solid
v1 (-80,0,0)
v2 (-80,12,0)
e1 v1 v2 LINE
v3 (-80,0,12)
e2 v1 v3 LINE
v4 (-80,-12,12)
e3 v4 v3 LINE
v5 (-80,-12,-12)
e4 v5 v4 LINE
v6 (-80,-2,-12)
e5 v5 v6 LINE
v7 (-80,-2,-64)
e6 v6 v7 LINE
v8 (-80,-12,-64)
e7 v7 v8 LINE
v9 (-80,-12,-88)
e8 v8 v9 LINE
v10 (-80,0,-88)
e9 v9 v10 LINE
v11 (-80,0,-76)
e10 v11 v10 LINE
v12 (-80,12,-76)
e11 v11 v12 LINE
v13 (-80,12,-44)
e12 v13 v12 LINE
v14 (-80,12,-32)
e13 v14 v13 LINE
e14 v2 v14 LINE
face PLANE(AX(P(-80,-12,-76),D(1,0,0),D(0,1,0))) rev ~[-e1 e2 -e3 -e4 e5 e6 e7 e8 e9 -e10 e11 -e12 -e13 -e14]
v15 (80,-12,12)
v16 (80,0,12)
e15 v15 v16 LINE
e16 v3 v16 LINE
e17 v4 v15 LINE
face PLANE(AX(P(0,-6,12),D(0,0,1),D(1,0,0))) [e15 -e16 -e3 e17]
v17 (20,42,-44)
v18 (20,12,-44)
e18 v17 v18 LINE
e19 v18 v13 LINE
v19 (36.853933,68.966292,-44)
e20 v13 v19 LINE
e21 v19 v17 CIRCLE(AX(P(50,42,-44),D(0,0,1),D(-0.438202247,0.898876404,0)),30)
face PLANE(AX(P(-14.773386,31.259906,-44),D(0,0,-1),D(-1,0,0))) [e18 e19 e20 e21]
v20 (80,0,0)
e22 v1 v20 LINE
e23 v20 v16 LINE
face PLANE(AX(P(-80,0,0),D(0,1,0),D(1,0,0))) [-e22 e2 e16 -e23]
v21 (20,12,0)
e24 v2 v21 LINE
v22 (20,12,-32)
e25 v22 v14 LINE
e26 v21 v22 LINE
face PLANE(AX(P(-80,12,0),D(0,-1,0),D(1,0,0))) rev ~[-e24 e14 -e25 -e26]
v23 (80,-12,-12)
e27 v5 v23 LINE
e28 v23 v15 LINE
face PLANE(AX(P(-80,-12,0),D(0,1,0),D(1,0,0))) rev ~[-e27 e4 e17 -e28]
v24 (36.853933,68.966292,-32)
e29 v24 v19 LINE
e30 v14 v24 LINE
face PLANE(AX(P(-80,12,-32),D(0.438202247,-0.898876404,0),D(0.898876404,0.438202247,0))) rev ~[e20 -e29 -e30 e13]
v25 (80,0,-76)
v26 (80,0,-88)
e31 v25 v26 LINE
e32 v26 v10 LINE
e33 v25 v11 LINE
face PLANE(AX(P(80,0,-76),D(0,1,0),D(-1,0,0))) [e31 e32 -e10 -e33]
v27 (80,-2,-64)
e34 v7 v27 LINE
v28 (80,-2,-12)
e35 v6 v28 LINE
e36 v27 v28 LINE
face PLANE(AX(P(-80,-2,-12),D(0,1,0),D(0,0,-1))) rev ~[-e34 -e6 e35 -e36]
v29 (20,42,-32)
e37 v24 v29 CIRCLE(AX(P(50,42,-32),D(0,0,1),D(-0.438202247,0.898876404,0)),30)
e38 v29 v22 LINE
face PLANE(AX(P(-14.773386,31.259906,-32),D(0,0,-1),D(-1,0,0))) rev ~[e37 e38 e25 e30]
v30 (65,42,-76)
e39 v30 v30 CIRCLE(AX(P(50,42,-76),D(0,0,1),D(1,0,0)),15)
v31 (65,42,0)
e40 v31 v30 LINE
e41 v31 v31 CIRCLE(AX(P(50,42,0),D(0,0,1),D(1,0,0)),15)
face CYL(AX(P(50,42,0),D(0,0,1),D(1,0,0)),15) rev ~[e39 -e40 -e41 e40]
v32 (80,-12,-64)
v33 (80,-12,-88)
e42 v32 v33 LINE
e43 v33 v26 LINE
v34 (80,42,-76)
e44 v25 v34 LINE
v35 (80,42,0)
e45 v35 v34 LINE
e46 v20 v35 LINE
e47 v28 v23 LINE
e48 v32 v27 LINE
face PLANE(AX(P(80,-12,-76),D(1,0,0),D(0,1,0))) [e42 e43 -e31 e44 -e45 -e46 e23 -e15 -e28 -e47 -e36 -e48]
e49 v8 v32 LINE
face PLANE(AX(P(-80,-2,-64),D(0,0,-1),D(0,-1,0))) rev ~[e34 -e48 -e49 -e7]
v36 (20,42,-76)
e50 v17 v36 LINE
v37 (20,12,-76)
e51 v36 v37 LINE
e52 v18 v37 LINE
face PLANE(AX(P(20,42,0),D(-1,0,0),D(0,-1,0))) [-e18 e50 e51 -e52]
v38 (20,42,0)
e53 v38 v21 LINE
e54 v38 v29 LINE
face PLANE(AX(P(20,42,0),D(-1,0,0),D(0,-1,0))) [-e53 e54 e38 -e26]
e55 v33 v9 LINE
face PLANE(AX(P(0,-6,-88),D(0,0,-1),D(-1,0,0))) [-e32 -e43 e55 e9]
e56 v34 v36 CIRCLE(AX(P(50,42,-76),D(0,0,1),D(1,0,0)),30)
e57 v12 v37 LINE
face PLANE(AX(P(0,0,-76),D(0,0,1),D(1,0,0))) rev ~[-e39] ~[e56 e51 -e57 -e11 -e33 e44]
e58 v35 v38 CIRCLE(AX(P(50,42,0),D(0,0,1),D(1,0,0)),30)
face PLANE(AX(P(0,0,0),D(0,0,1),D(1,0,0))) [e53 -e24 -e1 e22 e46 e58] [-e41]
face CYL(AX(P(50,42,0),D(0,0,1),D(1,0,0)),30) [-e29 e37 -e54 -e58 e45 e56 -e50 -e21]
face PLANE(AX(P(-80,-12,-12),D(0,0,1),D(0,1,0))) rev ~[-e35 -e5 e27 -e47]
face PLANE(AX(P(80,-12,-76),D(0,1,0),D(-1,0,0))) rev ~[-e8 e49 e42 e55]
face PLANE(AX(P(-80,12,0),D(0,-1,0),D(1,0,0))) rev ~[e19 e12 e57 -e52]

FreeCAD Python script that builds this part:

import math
import FreeCAD as App
import Part
import Sketcher


def add_polygon(sketch, points):
    """Adds a closed chain of lines whose ends are joined by coincident constraints."""
    first, n = sketch.GeometryCount, len(points)
    for a, b in zip(points, points[1:] + points[:1]):
        sketch.addGeometry(Part.LineSegment(App.Vector(*a, 0), App.Vector(*b, 0)), False)
    for i in range(n):
        sketch.addConstraint(Sketcher.Constraint("Coincident", first + i, 2, first + (i + 1) % n, 1))

doc = App.newDocument("Part")
body = doc.addObject("PartDesign::Body", "Body")

sketch1 = body.newObject("Sketcher::SketchObject", "Sketch")
sketch1.AttachmentSupport = (doc.getObject("XY_Plane"), [""])
sketch1.MapMode = "FlatFace"
sketch1.addGeometry([
    Part.LineSegment(App.Vector(-80, 12, 0), App.Vector(-80, -12, 0)),
    Part.LineSegment(App.Vector(-80, -12, 0), App.Vector(80, -12, 0)),
    Part.LineSegment(App.Vector(80, -12, 0), App.Vector(80, 42, 0)),
    Part.ArcOfCircle(Part.Circle(App.Vector(50, 42, 0), App.Vector(0, 0, 1), 30), math.radians(0), math.radians(180)),
    Part.LineSegment(App.Vector(20, 42, 0), App.Vector(20, 12, 0)),
    Part.LineSegment(App.Vector(20, 12, 0), App.Vector(-80, 12, 0)),
], False)
sketch1.addConstraint([
    Sketcher.Constraint("Coincident", 0, 2, 1, 1),
    Sketcher.Constraint("Coincident", 1, 2, 2, 1),
    Sketcher.Constraint("Tangent", 2, 2, 3, 1),
    Sketcher.Constraint("Tangent", 3, 2, 4, 1),
    Sketcher.Constraint("Coincident", 4, 2, 5, 1),
    Sketcher.Constraint("Coincident", 5, 2, 0, 1),
    Sketcher.Constraint("Vertical", 0),
    Sketcher.Constraint("Horizontal", 1),
    Sketcher.Constraint("Vertical", 2),
    Sketcher.Constraint("Vertical", 4),
    Sketcher.Constraint("Horizontal", 5),
    Sketcher.Constraint("Symmetric", 1, 2, 5, 2, -1, 1),
    Sketcher.Constraint("Radius", 3, 30.0),
    Sketcher.Constraint("DistanceX", 1, 1, 1, 2, 160.0),
    Sketcher.Constraint("DistanceY", 0, 2, 0, 1, 24.0),
    Sketcher.Constraint("DistanceY", 2, 1, 2, 2, 54.0),
])
pad1 = body.newObject("PartDesign::Pad", "Pad")
pad1.Profile = sketch1
pad1.Length = 76
pad1.Reversed = True

sketch2 = body.newObject("Sketcher::SketchObject", "Sketch001")
sketch2.AttachmentSupport = (doc.getObject("XY_Plane"), [""])
sketch2.MapMode = "FlatFace"
sketch2.AttachmentOffset = App.Placement(App.Vector(0, 0, -32), App.Rotation())
sketch2.addGeometry([
    Part.LineSegment(App.Vector(37, 69, 0), App.Vector(-80, 12, 0)),
    Part.LineSegment(App.Vector(-80, 12, 0), App.Vector(20, 12, 0)),
    Part.LineSegment(App.Vector(20, 12, 0), App.Vector(20, 42, 0)),
    Part.ArcOfCircle(Part.Circle(App.Vector(50, 42, 0), App.Vector(0, 0, 1), 30), math.radians(116), math.radians(180)),
], False)
sketch2.addConstraint([
    Sketcher.Constraint("Coincident", 0, 2, 1, 1),
    Sketcher.Constraint("Coincident", 1, 2, 2, 1),
    Sketcher.Constraint("Tangent", 2, 2, 3, 2),
    Sketcher.Constraint("Tangent", 3, 1, 0, 1),
    Sketcher.Constraint("Horizontal", 1),
    Sketcher.Constraint("Vertical", 2),
    Sketcher.Constraint("Radius", 3, 30.0),
    Sketcher.Constraint("DistanceX", 1, 1, 1, 2, 100.0),
    Sketcher.Constraint("DistanceY", 2, 1, 2, 2, 30.0),
    Sketcher.Constraint("DistanceX", -1, 1, 3, 3, 50.0),
    Sketcher.Constraint("DistanceY", -1, 1, 3, 3, 42.0),
])
pad2 = body.newObject("PartDesign::Pad", "Pad001")
pad2.Profile = sketch2
pad2.Length = 12
pad2.Reversed = True

sketch3 = body.newObject("Sketcher::SketchObject", "Sketch002")
sketch3.AttachmentSupport = (doc.getObject("XY_Plane"), [""])
sketch3.MapMode = "FlatFace"
sketch3.addGeometry(Part.Circle(App.Vector(50, 42, 0), App.Vector(0, 0, 1), 15), False)
sketch3.addConstraint([
    Sketcher.Constraint("Diameter", 0, 30.0),
    Sketcher.Constraint("DistanceX", -1, 1, 0, 3, 50.0),
    Sketcher.Constraint("DistanceY", -1, 1, 0, 3, 42.0),
])
pocket1 = body.newObject("PartDesign::Pocket", "Pocket")
pocket1.Profile = sketch3
pocket1.Length = 95

sketch4 = body.newObject("Sketcher::SketchObject", "Sketch003")
sketch4.AttachmentSupport = (doc.getObject("YZ_Plane"), [""])
sketch4.MapMode = "FlatFace"
sketch4.AttachmentOffset = App.Placement(App.Vector(0, 0, -80), App.Rotation())
add_polygon(sketch4, [(-12, -12), (-2, -12), (-2, -64), (-12, -64)])
sketch4.addConstraint([
    Sketcher.Constraint("Horizontal", 0),
    Sketcher.Constraint("Vertical", 1),
    Sketcher.Constraint("Horizontal", 2),
    Sketcher.Constraint("Vertical", 3),
    Sketcher.Constraint("DistanceX", 0, 1, 0, 2, 10.0),
    Sketcher.Constraint("DistanceY", 1, 2, 1, 1, 52.0),
    Sketcher.Constraint("DistanceX", 0, 2, -1, 1, 2.0),
    Sketcher.Constraint("DistanceY", 0, 2, -1, 1, 12.0),
])
pocket2 = body.newObject("PartDesign::Pocket", "Pocket001")
pocket2.Profile = sketch4
pocket2.Length = 196
pocket2.Reversed = True

sketch5 = body.newObject("Sketcher::SketchObject", "Sketch004")
sketch5.AttachmentSupport = (doc.getObject("XY_Plane"), [""])
sketch5.MapMode = "FlatFace"
add_polygon(sketch5, [(-80, 0), (-80, -12), (80, -12), (80, 0)])
sketch5.addConstraint([
    Sketcher.Constraint("Vertical", 0),
    Sketcher.Constraint("Horizontal", 1),
    Sketcher.Constraint("Vertical", 2),
    Sketcher.Constraint("Horizontal", 3),
    Sketcher.Constraint("Symmetric", 2, 2, 3, 2, -1, 1),
    Sketcher.Constraint("DistanceX", 1, 1, 1, 2, 160.0),
    Sketcher.Constraint("DistanceY", 0, 2, 0, 1, 12.0),
])
pad3 = body.newObject("PartDesign::Pad", "Pad002")
pad3.Profile = sketch5
pad3.Length = 12

sketch6 = body.newObject("Sketcher::SketchObject", "Sketch005")
sketch6.AttachmentSupport = (doc.getObject("XY_Plane"), [""])
sketch6.MapMode = "FlatFace"
sketch6.AttachmentOffset = App.Placement(App.Vector(0, 0, -76), App.Rotation())
add_polygon(sketch6, [(80, 0), (80, -12), (-80, -12), (-80, 0)])
sketch6.addConstraint([
    Sketcher.Constraint("Vertical", 0),
    Sketcher.Constraint("Horizontal", 1),
    Sketcher.Constraint("Vertical", 2),
    Sketcher.Constraint("Horizontal", 3),
    Sketcher.Constraint("Symmetric", 2, 2, 3, 2, -1, 1),
    Sketcher.Constraint("DistanceX", 1, 2, 1, 1, 160.0),
    Sketcher.Constraint("DistanceY", 0, 2, 0, 1, 12.0),
])
pad4 = body.newObject("PartDesign::Pad", "Pad003")
pad4.Profile = sketch6
pad4.Length = 12
pad4.Reversed = True

doc.recompute()
